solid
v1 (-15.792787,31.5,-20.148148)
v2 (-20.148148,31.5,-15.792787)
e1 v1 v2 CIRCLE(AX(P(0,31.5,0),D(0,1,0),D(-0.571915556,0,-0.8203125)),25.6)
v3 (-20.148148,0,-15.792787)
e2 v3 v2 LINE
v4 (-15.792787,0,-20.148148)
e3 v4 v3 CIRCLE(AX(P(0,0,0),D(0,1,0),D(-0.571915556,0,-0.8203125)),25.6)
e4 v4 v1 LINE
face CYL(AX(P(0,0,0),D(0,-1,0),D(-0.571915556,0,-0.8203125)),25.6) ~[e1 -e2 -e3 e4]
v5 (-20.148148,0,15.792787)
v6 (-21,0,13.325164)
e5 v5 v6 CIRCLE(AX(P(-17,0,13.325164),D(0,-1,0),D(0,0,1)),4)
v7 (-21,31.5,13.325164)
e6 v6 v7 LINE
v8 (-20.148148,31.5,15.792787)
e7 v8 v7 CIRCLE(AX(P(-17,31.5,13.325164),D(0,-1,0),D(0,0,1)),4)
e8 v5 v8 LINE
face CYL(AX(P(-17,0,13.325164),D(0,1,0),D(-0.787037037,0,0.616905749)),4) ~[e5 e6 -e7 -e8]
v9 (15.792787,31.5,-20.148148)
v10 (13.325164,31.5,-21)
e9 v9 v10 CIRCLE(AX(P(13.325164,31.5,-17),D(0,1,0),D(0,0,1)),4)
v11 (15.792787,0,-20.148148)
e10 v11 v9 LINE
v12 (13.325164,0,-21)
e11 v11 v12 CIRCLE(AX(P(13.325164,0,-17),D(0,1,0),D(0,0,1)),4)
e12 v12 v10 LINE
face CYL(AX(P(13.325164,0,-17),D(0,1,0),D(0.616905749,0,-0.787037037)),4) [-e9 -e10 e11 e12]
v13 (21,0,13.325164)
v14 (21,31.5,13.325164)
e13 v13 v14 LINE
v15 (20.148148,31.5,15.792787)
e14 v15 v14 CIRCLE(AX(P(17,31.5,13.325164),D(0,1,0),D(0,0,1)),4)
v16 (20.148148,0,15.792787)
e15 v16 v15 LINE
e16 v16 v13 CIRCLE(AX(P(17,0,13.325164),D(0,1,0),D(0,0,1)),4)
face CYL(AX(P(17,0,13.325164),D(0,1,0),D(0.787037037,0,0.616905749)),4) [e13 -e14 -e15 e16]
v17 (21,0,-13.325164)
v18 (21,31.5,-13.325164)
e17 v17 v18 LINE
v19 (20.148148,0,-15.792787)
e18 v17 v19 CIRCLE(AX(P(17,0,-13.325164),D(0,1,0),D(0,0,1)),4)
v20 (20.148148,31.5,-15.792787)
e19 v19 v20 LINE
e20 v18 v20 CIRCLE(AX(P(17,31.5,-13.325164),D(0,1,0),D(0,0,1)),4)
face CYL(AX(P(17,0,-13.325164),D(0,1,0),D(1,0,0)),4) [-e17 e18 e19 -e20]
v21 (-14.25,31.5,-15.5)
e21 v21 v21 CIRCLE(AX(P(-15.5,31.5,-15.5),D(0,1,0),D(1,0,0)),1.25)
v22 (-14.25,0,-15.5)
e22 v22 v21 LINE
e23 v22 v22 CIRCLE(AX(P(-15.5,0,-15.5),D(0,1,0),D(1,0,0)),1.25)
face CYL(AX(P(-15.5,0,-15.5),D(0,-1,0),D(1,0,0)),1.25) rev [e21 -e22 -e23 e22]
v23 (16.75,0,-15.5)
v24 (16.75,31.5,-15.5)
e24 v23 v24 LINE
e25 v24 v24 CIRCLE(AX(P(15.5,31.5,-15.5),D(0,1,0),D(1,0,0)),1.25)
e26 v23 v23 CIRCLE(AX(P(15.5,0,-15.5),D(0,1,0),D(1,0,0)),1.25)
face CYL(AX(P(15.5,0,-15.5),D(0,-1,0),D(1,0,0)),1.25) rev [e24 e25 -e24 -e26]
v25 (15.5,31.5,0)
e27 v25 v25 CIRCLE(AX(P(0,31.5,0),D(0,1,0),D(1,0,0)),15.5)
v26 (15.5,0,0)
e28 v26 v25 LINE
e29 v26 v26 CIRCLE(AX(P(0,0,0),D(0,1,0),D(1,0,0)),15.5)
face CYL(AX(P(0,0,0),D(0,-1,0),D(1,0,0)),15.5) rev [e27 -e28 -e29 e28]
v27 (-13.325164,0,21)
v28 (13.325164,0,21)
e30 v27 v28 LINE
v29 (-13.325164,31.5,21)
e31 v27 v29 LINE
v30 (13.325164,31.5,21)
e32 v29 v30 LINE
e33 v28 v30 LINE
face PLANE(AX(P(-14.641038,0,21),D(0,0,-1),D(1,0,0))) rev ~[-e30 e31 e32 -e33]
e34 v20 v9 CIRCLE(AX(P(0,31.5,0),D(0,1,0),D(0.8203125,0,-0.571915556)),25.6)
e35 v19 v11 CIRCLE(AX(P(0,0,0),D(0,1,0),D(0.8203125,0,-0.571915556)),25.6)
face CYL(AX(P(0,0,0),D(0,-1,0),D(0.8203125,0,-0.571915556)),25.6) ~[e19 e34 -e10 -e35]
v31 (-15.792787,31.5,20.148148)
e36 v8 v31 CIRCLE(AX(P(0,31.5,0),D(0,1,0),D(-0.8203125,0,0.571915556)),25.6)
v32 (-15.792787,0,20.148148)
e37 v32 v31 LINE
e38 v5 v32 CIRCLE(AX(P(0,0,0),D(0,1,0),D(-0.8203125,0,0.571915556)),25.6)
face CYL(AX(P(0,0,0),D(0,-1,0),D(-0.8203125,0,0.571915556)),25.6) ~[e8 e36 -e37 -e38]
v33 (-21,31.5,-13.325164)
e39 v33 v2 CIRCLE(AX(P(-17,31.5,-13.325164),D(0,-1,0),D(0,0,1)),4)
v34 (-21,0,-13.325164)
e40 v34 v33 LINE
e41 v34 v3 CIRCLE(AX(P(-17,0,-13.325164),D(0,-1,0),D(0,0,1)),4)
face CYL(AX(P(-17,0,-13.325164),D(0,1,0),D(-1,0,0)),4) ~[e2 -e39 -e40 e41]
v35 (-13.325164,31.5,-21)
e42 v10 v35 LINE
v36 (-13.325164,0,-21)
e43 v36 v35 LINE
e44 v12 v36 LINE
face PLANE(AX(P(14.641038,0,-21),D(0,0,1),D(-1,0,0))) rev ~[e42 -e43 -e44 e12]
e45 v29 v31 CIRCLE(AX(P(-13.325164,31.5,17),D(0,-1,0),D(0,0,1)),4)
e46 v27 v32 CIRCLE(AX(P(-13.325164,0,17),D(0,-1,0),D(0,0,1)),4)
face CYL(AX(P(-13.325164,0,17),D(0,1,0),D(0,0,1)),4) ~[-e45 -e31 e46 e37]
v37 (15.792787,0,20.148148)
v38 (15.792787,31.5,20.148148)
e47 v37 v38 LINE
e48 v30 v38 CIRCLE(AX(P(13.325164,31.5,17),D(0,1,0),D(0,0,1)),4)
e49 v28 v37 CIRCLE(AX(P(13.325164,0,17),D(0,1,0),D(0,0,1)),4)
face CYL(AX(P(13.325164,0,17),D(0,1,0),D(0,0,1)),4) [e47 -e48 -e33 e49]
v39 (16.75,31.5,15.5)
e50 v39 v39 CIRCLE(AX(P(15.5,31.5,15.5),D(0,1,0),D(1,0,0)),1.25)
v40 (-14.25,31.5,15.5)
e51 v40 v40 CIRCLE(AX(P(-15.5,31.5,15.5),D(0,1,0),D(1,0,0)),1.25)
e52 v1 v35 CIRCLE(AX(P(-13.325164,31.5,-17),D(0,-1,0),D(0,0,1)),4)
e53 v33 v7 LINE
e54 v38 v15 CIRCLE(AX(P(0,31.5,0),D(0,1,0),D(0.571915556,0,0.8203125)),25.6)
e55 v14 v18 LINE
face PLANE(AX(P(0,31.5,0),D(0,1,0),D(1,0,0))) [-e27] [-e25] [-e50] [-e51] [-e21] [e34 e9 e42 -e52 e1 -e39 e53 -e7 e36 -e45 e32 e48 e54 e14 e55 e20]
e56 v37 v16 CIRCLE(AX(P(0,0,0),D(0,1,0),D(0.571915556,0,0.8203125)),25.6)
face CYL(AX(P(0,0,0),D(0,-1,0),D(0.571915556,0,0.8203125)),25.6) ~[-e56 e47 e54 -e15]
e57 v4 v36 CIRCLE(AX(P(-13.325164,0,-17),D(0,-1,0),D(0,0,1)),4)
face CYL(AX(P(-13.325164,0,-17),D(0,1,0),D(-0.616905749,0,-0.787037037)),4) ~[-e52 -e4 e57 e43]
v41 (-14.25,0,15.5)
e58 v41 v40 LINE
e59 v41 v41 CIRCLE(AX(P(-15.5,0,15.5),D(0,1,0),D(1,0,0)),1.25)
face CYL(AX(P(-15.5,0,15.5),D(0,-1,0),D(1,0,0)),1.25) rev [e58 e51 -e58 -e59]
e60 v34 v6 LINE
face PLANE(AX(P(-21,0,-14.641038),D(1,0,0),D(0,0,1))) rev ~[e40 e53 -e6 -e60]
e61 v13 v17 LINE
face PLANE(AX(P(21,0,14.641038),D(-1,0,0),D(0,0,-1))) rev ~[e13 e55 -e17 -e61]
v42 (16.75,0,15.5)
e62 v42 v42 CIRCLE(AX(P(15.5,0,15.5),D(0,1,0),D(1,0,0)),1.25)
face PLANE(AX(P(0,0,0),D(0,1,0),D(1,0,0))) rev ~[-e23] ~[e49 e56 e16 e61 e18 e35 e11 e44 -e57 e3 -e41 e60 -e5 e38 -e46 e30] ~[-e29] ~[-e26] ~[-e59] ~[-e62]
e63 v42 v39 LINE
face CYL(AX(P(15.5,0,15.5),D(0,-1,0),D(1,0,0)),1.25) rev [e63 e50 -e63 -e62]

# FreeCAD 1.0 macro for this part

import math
import FreeCAD as App
import Part
import Sketcher
from FreeCAD import Vector


def edges_at(feature, points):
    """Names of the edges that pass closest to the given points."""
    edges = feature.Shape.Edges
    near = lambda p: min(range(len(edges)), key=lambda i: edges[i].distToShape(Part.Vertex(*p))[0])
    return sorted({f"Edge{near(p) + 1}" for p in points})

doc = App.newDocument("Part")
body = doc.addObject("PartDesign::Body", "Body")

# Sketch on XZ plane
sketch1 = doc.addObject("Sketcher::SketchObject", "Sketch")
body.addObject(sketch1)
sketch1.AttachmentSupport = (doc.XZ_Plane, [""])
sketch1.MapMode = "FlatFace"
sketch1.addGeometry([
    Part.LineSegment(Vector(-14.641038, 21, 0), Vector(14.641038, 21, 0)),  # 0
    Part.ArcOfCircle(Part.Circle(Vector(0, 0, 0), Vector(0, 0, 1), 25.6), math.radians(34.883912), math.radians(55.116088)),  # 1
    Part.LineSegment(Vector(21, 14.641038, 0), Vector(21, -14.641038, 0)),  # 2
    Part.ArcOfCircle(Part.Circle(Vector(0, 0, 0), Vector(0, 0, 1), 25.6), math.radians(-55.116088), math.radians(-34.883912)),  # 3
    Part.LineSegment(Vector(14.641038, -21, 0), Vector(-14.641038, -21, 0)),  # 4
    Part.ArcOfCircle(Part.Circle(Vector(0, 0, 0), Vector(0, 0, 1), 25.6), math.radians(-145.116088), math.radians(-124.883912)),  # 5
    Part.LineSegment(Vector(-21, -14.641038, 0), Vector(-21, 14.641038, 0)),  # 6
    Part.ArcOfCircle(Part.Circle(Vector(0, 0, 0), Vector(0, 0, 1), 25.6), math.radians(124.883912), math.radians(145.116088)),  # 7
    Part.Circle(Vector(-15.5, 15.5, 0), Vector(0, 0, 1), 1.25),  # 8
    Part.Circle(Vector(15.5, 15.5, 0), Vector(0, 0, 1), 1.25),  # 9
    Part.Circle(Vector(-15.5, -15.5, 0), Vector(0, 0, 1), 1.25),  # 10
    Part.Circle(Vector(0, 0, 0), Vector(0, 0, 1), 15.5),  # 11
    Part.Circle(Vector(15.5, -15.5, 0), Vector(0, 0, 1), 1.25),  # 12
], False)
sketch1.addConstraint([
    Sketcher.Constraint("Coincident", 0, 2, 1, 2),
    Sketcher.Constraint("Coincident", 1, 1, 2, 1),
    Sketcher.Constraint("Coincident", 2, 2, 3, 2),
    Sketcher.Constraint("Coincident", 3, 1, 4, 1),
    Sketcher.Constraint("Coincident", 4, 2, 5, 2),
    Sketcher.Constraint("Coincident", 5, 1, 6, 1),
    Sketcher.Constraint("Coincident", 6, 2, 7, 2),
    Sketcher.Constraint("Coincident", 7, 1, 0, 1),
    Sketcher.Constraint("Horizontal", 0),
    Sketcher.Constraint("Vertical", 2),
    Sketcher.Constraint("Horizontal", 4),
    Sketcher.Constraint("Vertical", 6),
    Sketcher.Constraint("Coincident", 1, 3, -1, 1),
    Sketcher.Constraint("Coincident", 3, 3, -1, 1),
    Sketcher.Constraint("Coincident", 5, 3, -1, 1),
    Sketcher.Constraint("Coincident", 7, 3, -1, 1),
    Sketcher.Constraint("Coincident", 11, 3, -1, 1),
    Sketcher.Constraint("Equal", 1, 3),
    Sketcher.Constraint("Equal", 3, 5),
    Sketcher.Constraint("Equal", 5, 7),
    Sketcher.Constraint("Equal", 8, 9),
    Sketcher.Constraint("Equal", 9, 10),
    Sketcher.Constraint("Equal", 10, 12),
    Sketcher.Constraint("Symmetric", 9, 3, 10, 3, -1, 1),
    Sketcher.Constraint("Symmetric", 8, 3, 12, 3, -1, 1),
    Sketcher.Constraint("Symmetric", 8, 3, 9, 3, -2),
    Sketcher.Constraint("Horizontal", 2, 2, 5, 1),
    Sketcher.Constraint("Vertical", 0, 2, 3, 1),
    Sketcher.Constraint("Equal", 4, 2),
    Sketcher.Constraint("Diameter", 11, 31.0),
    Sketcher.Constraint("Diameter", 8, 2.5),
    Sketcher.Constraint("Radius", 1, 25.6),
    Sketcher.Constraint("DistanceY", -1, 1, 0, 2, 21.0),
    Sketcher.Constraint("DistanceX", 8, 3, 9, 3, 31.0),
    Sketcher.Constraint("DistanceY", 10, 3, 8, 3, 31.0),
])
pad1 = doc.addObject("PartDesign::Pad", "Pad")
body.addObject(pad1)
pad1.Profile = sketch1
pad1.Length = 31.5
pad1.Reversed = True
doc.recompute()

fillet = doc.addObject("PartDesign::Fillet", "Fillet")
body.addObject(fillet)
fillet.Base = (pad1, edges_at(pad1, [
    (21, 15.75, -14.641),
    (21, 15.75, 14.641),
    (14.641, 15.75, 21),
    (-14.641, 15.75, 21),
    (-21, 15.75, 14.641),
    (-21, 15.75, -14.641),
    (-14.641, 15.75, -21),
    (14.641, 15.75, -21),
]))
fillet.Radius = 4

doc.recompute()
